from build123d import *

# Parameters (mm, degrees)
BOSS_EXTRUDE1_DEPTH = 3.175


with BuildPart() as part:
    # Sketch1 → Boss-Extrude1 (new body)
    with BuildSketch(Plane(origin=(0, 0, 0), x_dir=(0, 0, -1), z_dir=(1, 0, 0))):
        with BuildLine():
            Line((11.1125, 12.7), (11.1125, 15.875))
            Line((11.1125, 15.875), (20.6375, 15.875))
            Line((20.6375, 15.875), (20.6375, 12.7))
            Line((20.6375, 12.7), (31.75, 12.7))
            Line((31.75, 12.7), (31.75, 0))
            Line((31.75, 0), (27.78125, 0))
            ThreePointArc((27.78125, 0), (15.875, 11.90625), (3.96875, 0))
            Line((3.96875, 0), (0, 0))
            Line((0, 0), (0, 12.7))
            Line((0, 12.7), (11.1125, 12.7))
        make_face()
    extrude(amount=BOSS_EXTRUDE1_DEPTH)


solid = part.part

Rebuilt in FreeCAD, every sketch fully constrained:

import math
import FreeCAD as App
import Part
import Sketcher

V = App.Vector
Q = App.Units.Quantity

doc = App.newDocument("Part")
body = doc.addObject("PartDesign::Body", "Body")

# Sketch on YZ plane
sketch1 = body.newObject("Sketcher::SketchObject", "Sketch")
sketch1.AttachmentSupport = (doc.getObject("YZ_Plane"), [""])
sketch1.MapMode = "FlatFace"
sketch1.addGeometry([
    Part.LineSegment(V(15.9, -11.1, 0), V(12.7, -11.1, 0)),  # 0
    Part.LineSegment(V(12.7, -11.1, 0), V(12.7, 0, 0)),  # 1
    Part.LineSegment(V(12.7, 0, 0), V(0, 0, 0)),  # 2
    Part.LineSegment(V(0, 0, 0), V(0, -4, 0)),  # 3
    Part.ArcOfCircle(Part.Circle(V(0, -15.9, 0), V(0, 0, 1), 11.9), math.radians(-90), math.radians(90)),  # 4
    Part.LineSegment(V(0, -27.8, 0), V(0, -31.8, 0)),  # 5
    Part.LineSegment(V(0, -31.8, 0), V(12.7, -31.8, 0)),  # 6
    Part.LineSegment(V(12.7, -31.8, 0), V(12.7, -20.6, 0)),  # 7
    Part.LineSegment(V(12.7, -20.6, 0), V(15.9, -20.6, 0)),  # 8
    Part.LineSegment(V(15.9, -20.6, 0), V(15.9, -11.1, 0)),  # 9
], False)
sketch1.addConstraint([
    Sketcher.Constraint("Coincident", 0, 2, 1, 1),
    Sketcher.Constraint("Coincident", 1, 2, 2, 1),
    Sketcher.Constraint("Coincident", 2, 2, 3, 1),
    Sketcher.Constraint("Coincident", 3, 2, 4, 2),
    Sketcher.Constraint("Coincident", 4, 1, 5, 1),
    Sketcher.Constraint("Coincident", 5, 2, 6, 1),
    Sketcher.Constraint("Coincident", 6, 2, 7, 1),
    Sketcher.Constraint("Coincident", 7, 2, 8, 1),
    Sketcher.Constraint("Coincident", 8, 2, 9, 1),
    Sketcher.Constraint("Coincident", 9, 2, 0, 1),
    Sketcher.Constraint("Horizontal", 0),
    Sketcher.Constraint("Vertical", 1),
    Sketcher.Constraint("Horizontal", 2),
    Sketcher.Constraint("Vertical", 3),
    Sketcher.Constraint("Vertical", 5),
    Sketcher.Constraint("Horizontal", 6),
    Sketcher.Constraint("Vertical", 7),
    Sketcher.Constraint("Horizontal", 8),
    Sketcher.Constraint("Vertical", 9),
    Sketcher.Constraint("Coincident", 2, 2, -1, 1),
    Sketcher.Constraint("PointOnObject", 4, 3, -2),
    Sketcher.Constraint("PointOnObject", 4, 1, -2),
    Sketcher.Constraint("Vertical", 1, 2, 6, 2),
    Sketcher.Constraint("Equal", 3, 5),
    Sketcher.Constraint("Equal", 1, 7),
    Sketcher.Constraint("DistanceX", 2, 2, 2, 1, Q("0.5 in")),
    Sketcher.Constraint("Radius", 4, Q("0.46875 in")),
    Sketcher.Constraint("DistanceX", 0, 2, 0, 1, Q("0.125 in")),
    Sketcher.Constraint("DistanceY", 1, 1, 1, 2, Q("0.4375 in")),
    Sketcher.Constraint("DistanceY", 3, 2, 3, 1, Q("0.15625 in")),
])
pad1 = body.newObject("PartDesign::Pad", "Pad")
pad1.Profile = sketch1
pad1.Length = Q("0.125 in")

doc.recompute()
